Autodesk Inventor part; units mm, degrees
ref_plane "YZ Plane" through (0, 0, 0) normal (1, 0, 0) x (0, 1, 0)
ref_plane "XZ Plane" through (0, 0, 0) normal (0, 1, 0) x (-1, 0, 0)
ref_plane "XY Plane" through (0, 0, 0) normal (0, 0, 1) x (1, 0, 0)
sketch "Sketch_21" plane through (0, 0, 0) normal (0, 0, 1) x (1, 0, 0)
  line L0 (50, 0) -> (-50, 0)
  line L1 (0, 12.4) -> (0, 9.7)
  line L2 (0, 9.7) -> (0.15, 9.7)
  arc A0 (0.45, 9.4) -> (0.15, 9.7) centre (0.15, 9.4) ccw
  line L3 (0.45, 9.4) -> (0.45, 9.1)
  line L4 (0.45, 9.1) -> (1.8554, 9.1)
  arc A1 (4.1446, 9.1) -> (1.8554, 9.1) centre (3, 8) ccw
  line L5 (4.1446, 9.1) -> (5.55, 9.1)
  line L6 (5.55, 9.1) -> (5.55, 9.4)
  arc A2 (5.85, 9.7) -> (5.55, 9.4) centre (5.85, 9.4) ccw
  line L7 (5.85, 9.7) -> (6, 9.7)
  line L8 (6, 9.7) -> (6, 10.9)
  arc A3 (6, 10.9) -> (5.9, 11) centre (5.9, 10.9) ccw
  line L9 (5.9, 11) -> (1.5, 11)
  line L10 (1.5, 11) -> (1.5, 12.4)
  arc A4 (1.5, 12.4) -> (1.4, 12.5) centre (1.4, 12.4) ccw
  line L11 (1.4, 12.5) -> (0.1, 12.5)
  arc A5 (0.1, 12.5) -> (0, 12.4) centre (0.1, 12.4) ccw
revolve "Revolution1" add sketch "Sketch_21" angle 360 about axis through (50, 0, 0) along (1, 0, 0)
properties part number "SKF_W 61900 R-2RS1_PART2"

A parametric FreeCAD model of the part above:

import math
import FreeCAD as App
import Part
import Sketcher

doc = App.newDocument("Part")
body = doc.addObject("PartDesign::Body", "Body")

sketch1 = doc.addObject("Sketcher::SketchObject", "Sketch")
body.addObject(sketch1)
sketch1.AttachmentSupport = (doc.XY_Plane, [""])
sketch1.MapMode = "FlatFace"
sketch1.addGeometry(Part.ArcOfCircle(Part.Circle(App.Vector(0.1, 12.4, 0), App.Vector(0, 0, 1), 0.1), math.radians(90), math.radians(180)), False)
sketch1.addGeometry(Part.LineSegment(App.Vector(0, 12.4, 0), App.Vector(0, 9.7, 0)), False)
sketch1.addGeometry(Part.LineSegment(App.Vector(0, 9.7, 0), App.Vector(0.15, 9.7, 0)), False)
sketch1.addGeometry(Part.ArcOfCircle(Part.Circle(App.Vector(0.15, 9.4, 0), App.Vector(0, 0, 1), 0.3), math.radians(0), math.radians(90)), False)
sketch1.addGeometry(Part.LineSegment(App.Vector(0.45, 9.4, 0), App.Vector(0.45, 9.1, 0)), False)
sketch1.addGeometry(Part.LineSegment(App.Vector(0.45, 9.1, 0), App.Vector(1.86, 9.1, 0)), False)
sketch1.addGeometry(Part.ArcOfCircle(Part.Circle(App.Vector(3, 8, 0), App.Vector(0, 0, 1), 1.59), math.radians(44), math.radians(136)), False)
sketch1.addGeometry(Part.LineSegment(App.Vector(4.14, 9.1, 0), App.Vector(5.55, 9.1, 0)), False)
sketch1.addGeometry(Part.LineSegment(App.Vector(5.55, 9.1, 0), App.Vector(5.55, 9.4, 0)), False)
sketch1.addGeometry(Part.ArcOfCircle(Part.Circle(App.Vector(5.85, 9.4, 0), App.Vector(0, 0, 1), 0.3), math.radians(90), math.radians(180)), False)
sketch1.addGeometry(Part.LineSegment(App.Vector(5.85, 9.7, 0), App.Vector(6, 9.7, 0)), False)
sketch1.addGeometry(Part.LineSegment(App.Vector(6, 9.7, 0), App.Vector(6, 10.9, 0)), False)
sketch1.addGeometry(Part.ArcOfCircle(Part.Circle(App.Vector(5.9, 10.9, 0), App.Vector(0, 0, 1), 0.1), math.radians(0), math.radians(90)), False)
sketch1.addGeometry(Part.LineSegment(App.Vector(5.9, 11, 0), App.Vector(1.5, 11, 0)), False)
sketch1.addGeometry(Part.LineSegment(App.Vector(1.5, 11, 0), App.Vector(1.5, 12.4, 0)), False)
sketch1.addGeometry(Part.ArcOfCircle(Part.Circle(App.Vector(1.4, 12.4, 0), App.Vector(0, 0, 1), 0.1), math.radians(0), math.radians(90)), False)
sketch1.addGeometry(Part.LineSegment(App.Vector(1.4, 12.5, 0), App.Vector(0.1, 12.5, 0)), False)
sketch1.addConstraint(Sketcher.Constraint("Tangent", 0, 2, 1, 1))
sketch1.addConstraint(Sketcher.Constraint("Coincident", 1, 2, 2, 1))
sketch1.addConstraint(Sketcher.Constraint("Tangent", 2, 2, 3, 2))
sketch1.addConstraint(Sketcher.Constraint("Tangent", 3, 1, 4, 1))
sketch1.addConstraint(Sketcher.Constraint("Coincident", 4, 2, 5, 1))
sketch1.addConstraint(Sketcher.Constraint("Coincident", 5, 2, 6, 2))
sketch1.addConstraint(Sketcher.Constraint("Coincident", 6, 1, 7, 1))
sketch1.addConstraint(Sketcher.Constraint("Coincident", 7, 2, 8, 1))
sketch1.addConstraint(Sketcher.Constraint("Tangent", 8, 2, 9, 2))
sketch1.addConstraint(Sketcher.Constraint("Tangent", 9, 1, 10, 1))
sketch1.addConstraint(Sketcher.Constraint("Coincident", 10, 2, 11, 1))
sketch1.addConstraint(Sketcher.Constraint("Tangent", 11, 2, 12, 1))
sketch1.addConstraint(Sketcher.Constraint("Tangent", 12, 2, 13, 1))
sketch1.addConstraint(Sketcher.Constraint("Coincident", 13, 2, 14, 1))
sketch1.addConstraint(Sketcher.Constraint("Tangent", 14, 2, 15, 1))
sketch1.addConstraint(Sketcher.Constraint("Tangent", 15, 2, 16, 1))
sketch1.addConstraint(Sketcher.Constraint("Tangent", 16, 2, 0, 1))
sketch1.addConstraint(Sketcher.Constraint("Vertical", 1))
sketch1.addConstraint(Sketcher.Constraint("Horizontal", 2))
sketch1.addConstraint(Sketcher.Constraint("Vertical", 4))
sketch1.addConstraint(Sketcher.Constraint("Horizontal", 5))
sketch1.addConstraint(Sketcher.Constraint("Horizontal", 7))
sketch1.addConstraint(Sketcher.Constraint("Vertical", 8))
sketch1.addConstraint(Sketcher.Constraint("Horizontal", 10))
sketch1.addConstraint(Sketcher.Constraint("Vertical", 11))
sketch1.addConstraint(Sketcher.Constraint("Horizontal", 13))
sketch1.addConstraint(Sketcher.Constraint("Vertical", 14))
sketch1.addConstraint(Sketcher.Constraint("Horizontal", 16))
sketch1.addConstraint(Sketcher.Constraint("Equal", 3, 9))
sketch1.addConstraint(Sketcher.Constraint("Equal", 0, 12))
sketch1.addConstraint(Sketcher.Constraint("Equal", 12, 15))
sketch1.addConstraint(Sketcher.Constraint("PointOnObject", 0, 2, -2))
sketch1.addConstraint(Sketcher.Constraint("Horizontal", 3, 3, 9, 3))
sketch1.addConstraint(Sketcher.Constraint("Horizontal", 5, 2, 6, 1))
sketch1.addConstraint(Sketcher.Constraint("Equal", 5, 7))
sketch1.addConstraint(Sketcher.Constraint("Equal", 2, 10))
sketch1.addConstraint(Sketcher.Constraint("Radius", 0, 0.1))
sketch1.addConstraint(Sketcher.Constraint("Radius", 3, 0.3))
sketch1.addConstraint(Sketcher.Constraint("DistanceX", 13, 2, 13, 1, 4.4))
sketch1.addConstraint(Sketcher.Constraint("DistanceX", 16, 2, 16, 1, 1.3))
sketch1.addConstraint(Sketcher.Constraint("DistanceY", 1, 2, 1, 1, 2.7))
sketch1.addConstraint(Sketcher.Constraint("DistanceY", 4, 2, 4, 1, 0.3))
sketch1.addConstraint(Sketcher.Constraint("DistanceY", 11, 1, 11, 2, 1.2))
sketch1.addConstraint(Sketcher.Constraint("DistanceY", -1, 1, 6, 3, 8.0))
sketch1.addConstraint(Sketcher.Constraint("DistanceY", -1, 1, 12, 2, 11.0))
sketch1.addConstraint(Sketcher.Constraint("DistanceX", 2, 1, 2, 2, 0.15))
sketch1.addConstraint(Sketcher.Constraint("Radius", 6, 1.5875))
revolution = doc.addObject("PartDesign::Revolution", "Revolution")
body.addObject(revolution)
revolution.Profile = sketch1
revolution.ReferenceAxis = (sketch1, ["H_Axis"])
revolution.Angle = 360

doc.recompute()
